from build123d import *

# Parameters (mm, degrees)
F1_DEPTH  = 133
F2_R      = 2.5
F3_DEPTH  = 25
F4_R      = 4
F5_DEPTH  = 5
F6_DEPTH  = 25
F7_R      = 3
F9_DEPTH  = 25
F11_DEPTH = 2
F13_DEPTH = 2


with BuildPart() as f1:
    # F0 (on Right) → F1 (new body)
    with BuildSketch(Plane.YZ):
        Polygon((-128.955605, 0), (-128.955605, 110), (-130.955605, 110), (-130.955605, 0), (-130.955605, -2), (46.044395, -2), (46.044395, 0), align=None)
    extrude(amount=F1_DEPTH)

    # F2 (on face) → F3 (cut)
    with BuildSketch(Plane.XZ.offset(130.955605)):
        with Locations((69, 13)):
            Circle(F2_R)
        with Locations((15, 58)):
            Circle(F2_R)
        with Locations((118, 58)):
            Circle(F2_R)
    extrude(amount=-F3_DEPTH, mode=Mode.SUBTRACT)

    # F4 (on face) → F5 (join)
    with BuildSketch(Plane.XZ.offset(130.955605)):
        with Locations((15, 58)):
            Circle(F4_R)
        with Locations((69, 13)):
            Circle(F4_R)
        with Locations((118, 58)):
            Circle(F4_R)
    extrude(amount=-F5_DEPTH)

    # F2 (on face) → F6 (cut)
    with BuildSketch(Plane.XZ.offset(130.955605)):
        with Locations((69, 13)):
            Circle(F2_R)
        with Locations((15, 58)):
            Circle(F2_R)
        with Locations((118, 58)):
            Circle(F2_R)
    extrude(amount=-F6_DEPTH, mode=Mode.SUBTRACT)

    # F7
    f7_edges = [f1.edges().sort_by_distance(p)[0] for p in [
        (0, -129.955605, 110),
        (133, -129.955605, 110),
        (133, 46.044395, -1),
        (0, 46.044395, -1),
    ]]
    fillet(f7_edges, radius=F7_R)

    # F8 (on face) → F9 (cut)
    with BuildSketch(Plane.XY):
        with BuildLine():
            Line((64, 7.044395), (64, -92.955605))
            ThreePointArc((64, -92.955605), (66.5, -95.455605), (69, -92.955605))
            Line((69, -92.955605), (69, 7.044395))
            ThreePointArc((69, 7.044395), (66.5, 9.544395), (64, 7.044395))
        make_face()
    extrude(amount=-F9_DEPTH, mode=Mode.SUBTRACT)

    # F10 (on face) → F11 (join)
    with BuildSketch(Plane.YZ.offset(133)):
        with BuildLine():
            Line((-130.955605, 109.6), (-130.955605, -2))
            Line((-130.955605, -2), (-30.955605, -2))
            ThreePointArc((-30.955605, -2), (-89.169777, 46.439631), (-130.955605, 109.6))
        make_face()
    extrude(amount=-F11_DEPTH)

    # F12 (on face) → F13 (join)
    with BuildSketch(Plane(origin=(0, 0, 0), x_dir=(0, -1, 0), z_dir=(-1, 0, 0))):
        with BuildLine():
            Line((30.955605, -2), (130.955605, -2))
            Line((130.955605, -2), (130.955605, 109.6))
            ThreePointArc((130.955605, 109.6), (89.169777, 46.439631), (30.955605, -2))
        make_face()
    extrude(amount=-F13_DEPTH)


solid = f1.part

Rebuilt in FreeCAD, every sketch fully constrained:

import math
import FreeCAD as App
import Part
import Sketcher
Q = App.Units.Quantity


def edges_at(feature, points):
    """Names of the edges that pass closest to the given points."""
    edges = feature.Shape.Edges
    near = lambda p: min(range(len(edges)), key=lambda i: edges[i].distToShape(Part.Vertex(*p))[0])
    return sorted({f"Edge{near(p) + 1}" for p in points})

doc = App.newDocument("Part")
body = doc.addObject("PartDesign::Body", "Body")

# Sketch on YZ plane
sketch1 = body.newObject("Sketcher::SketchObject", "Sketch")
sketch1.AttachmentSupport = (doc.getObject("YZ_Plane"), [""])
sketch1.MapMode = "FlatFace"
sketch1.addGeometry([
    Part.LineSegment(App.Vector(-129, 0, 0), App.Vector(-129, 110, 0)),  # 0
    Part.LineSegment(App.Vector(-129, 110, 0), App.Vector(-131, 110, 0)),  # 1
    Part.LineSegment(App.Vector(-131, 110, 0), App.Vector(-131, -2, 0)),  # 2
    Part.LineSegment(App.Vector(-131, -2, 0), App.Vector(46, -2, 0)),  # 3
    Part.LineSegment(App.Vector(46, -2, 0), App.Vector(46, 0, 0)),  # 4
    Part.LineSegment(App.Vector(46, 0, 0), App.Vector(-129, 0, 0)),  # 5
], False)
sketch1.addConstraint([
    Sketcher.Constraint("Coincident", 0, 2, 1, 1),
    Sketcher.Constraint("Coincident", 1, 2, 2, 1),
    Sketcher.Constraint("Coincident", 2, 2, 3, 1),
    Sketcher.Constraint("Coincident", 3, 2, 4, 1),
    Sketcher.Constraint("Coincident", 4, 2, 5, 1),
    Sketcher.Constraint("Coincident", 5, 2, 0, 1),
    Sketcher.Constraint("Vertical", 0),
    Sketcher.Constraint("Horizontal", 1),
    Sketcher.Constraint("Vertical", 2),
    Sketcher.Constraint("Horizontal", 3),
    Sketcher.Constraint("Vertical", 4),
    Sketcher.Constraint("Horizontal", 5),
    Sketcher.Constraint("PointOnObject", 4, 2, -1),
    Sketcher.Constraint("Equal", 1, 4),
    Sketcher.Constraint("DistanceX", 1, 2, 1, 1, Q("2 mm")),
    Sketcher.Constraint("DistanceX", 3, 1, 3, 2, Q("177 mm")),
    Sketcher.Constraint("DistanceY", 0, 1, 0, 2, Q("110 mm")),
    Sketcher.Constraint("DistanceX", 0, 2, -1, 1, Q("128.955605 mm")),
])
pad1 = body.newObject("PartDesign::Pad", "Pad")
pad1.Profile = sketch1
pad1.Length = 133

# Sketch on XZ plane
sketch2 = body.newObject("Sketcher::SketchObject", "Sketch001")
sketch2.AttachmentSupport = (doc.getObject("XZ_Plane"), [""])
sketch2.MapMode = "FlatFace"
sketch2.AttachmentOffset = App.Placement(App.Vector(0, 0, 130.955605), App.Rotation())
sketch2.addGeometry([
    Part.Circle(App.Vector(69, 13, 0), App.Vector(0, 0, 1), 2.5),
    Part.Circle(App.Vector(15, 58, 0), App.Vector(0, 0, 1), 2.5),
    Part.Circle(App.Vector(118, 58, 0), App.Vector(0, 0, 1), 2.5),
], False)
sketch2.addConstraint([
    Sketcher.Constraint("Equal", 0, 1),
    Sketcher.Constraint("Equal", 1, 2),
    Sketcher.Constraint("Horizontal", 1, 3, 2, 3),
    Sketcher.Constraint("Diameter", 0, Q("5 mm")),
    Sketcher.Constraint("DistanceX", -1, 1, 0, 3, Q("69 mm")),
    Sketcher.Constraint("DistanceY", -1, 1, 0, 3, Q("13 mm")),
    Sketcher.Constraint("DistanceX", -1, 1, 1, 3, Q("15 mm")),
    Sketcher.Constraint("DistanceY", -1, 1, 1, 3, Q("58 mm")),
    Sketcher.Constraint("DistanceX", -1, 1, 2, 3, Q("118 mm")),
])
pocket1 = body.newObject("PartDesign::Pocket", "Pocket")
pocket1.Profile = sketch2
pocket1.Length = 25

# Sketch on XZ plane
sketch3 = body.newObject("Sketcher::SketchObject", "Sketch002")
sketch3.AttachmentSupport = (doc.getObject("XZ_Plane"), [""])
sketch3.MapMode = "FlatFace"
sketch3.AttachmentOffset = App.Placement(App.Vector(0, 0, 130.955605), App.Rotation())
sketch3.addGeometry([
    Part.Circle(App.Vector(15, 58, 0), App.Vector(0, 0, 1), 4),
    Part.Circle(App.Vector(69, 13, 0), App.Vector(0, 0, 1), 4),
    Part.Circle(App.Vector(118, 58, 0), App.Vector(0, 0, 1), 4),
], False)
sketch3.addConstraint([
    Sketcher.Constraint("Equal", 0, 1),
    Sketcher.Constraint("Equal", 1, 2),
    Sketcher.Constraint("Horizontal", 0, 3, 2, 3),
    Sketcher.Constraint("Diameter", 0, Q("8 mm")),
    Sketcher.Constraint("DistanceX", -1, 1, 0, 3, Q("15 mm")),
    Sketcher.Constraint("DistanceY", -1, 1, 0, 3, Q("58 mm")),
    Sketcher.Constraint("DistanceX", -1, 1, 1, 3, Q("69 mm")),
    Sketcher.Constraint("DistanceY", -1, 1, 1, 3, Q("13 mm")),
    Sketcher.Constraint("DistanceX", -1, 1, 2, 3, Q("118 mm")),
])
pad2 = body.newObject("PartDesign::Pad", "Pad001")
pad2.Profile = sketch3
pad2.Length = 5
pad2.Reversed = True

# Sketch on XZ plane
sketch4 = body.newObject("Sketcher::SketchObject", "Sketch003")
sketch4.AttachmentSupport = (doc.getObject("XZ_Plane"), [""])
sketch4.MapMode = "FlatFace"
sketch4.AttachmentOffset = App.Placement(App.Vector(0, 0, 130.955605), App.Rotation())
sketch4.addGeometry([
    Part.Circle(App.Vector(69, 13, 0), App.Vector(0, 0, 1), 2.5),
    Part.Circle(App.Vector(15, 58, 0), App.Vector(0, 0, 1), 2.5),
    Part.Circle(App.Vector(118, 58, 0), App.Vector(0, 0, 1), 2.5),
], False)
sketch4.addConstraint([
    Sketcher.Constraint("Equal", 0, 1),
    Sketcher.Constraint("Equal", 1, 2),
    Sketcher.Constraint("Horizontal", 1, 3, 2, 3),
    Sketcher.Constraint("Diameter", 0, Q("5 mm")),
    Sketcher.Constraint("DistanceX", -1, 1, 0, 3, Q("69 mm")),
    Sketcher.Constraint("DistanceY", -1, 1, 0, 3, Q("13 mm")),
    Sketcher.Constraint("DistanceX", -1, 1, 1, 3, Q("15 mm")),
    Sketcher.Constraint("DistanceY", -1, 1, 1, 3, Q("58 mm")),
    Sketcher.Constraint("DistanceX", -1, 1, 2, 3, Q("118 mm")),
])
pocket2 = body.newObject("PartDesign::Pocket", "Pocket001")
pocket2.Profile = sketch4
pocket2.Length = 25
doc.recompute()

fillet = body.newObject("PartDesign::Fillet", "Fillet")
fillet.Base = (pocket2, edges_at(pocket2, [
    (0, -129.956, 110),
    (133, -129.956, 110),
    (133, 46.044, -1),
    (0, 46.044, -1),
]))
fillet.Radius = 3

# Sketch on XY plane
sketch5 = body.newObject("Sketcher::SketchObject", "Sketch004")
sketch5.AttachmentSupport = (doc.getObject("XY_Plane"), [""])
sketch5.MapMode = "FlatFace"
sketch5.addGeometry([
    Part.LineSegment(App.Vector(64, 7, 0), App.Vector(64, -93, 0)),
    Part.ArcOfCircle(Part.Circle(App.Vector(66.5, -93, 0), App.Vector(0, 0, 1), 2.5), math.radians(180), math.radians(360)),
    Part.LineSegment(App.Vector(69, -93, 0), App.Vector(69, 7, 0)),
    Part.ArcOfCircle(Part.Circle(App.Vector(66.5, 7, 0), App.Vector(0, 0, 1), 2.5), math.radians(0), math.radians(180)),
], False)
sketch5.addConstraint([
    Sketcher.Constraint("Tangent", 0, 2, 1, 1),
    Sketcher.Constraint("Tangent", 1, 2, 2, 1),
    Sketcher.Constraint("Tangent", 2, 2, 3, 1),
    Sketcher.Constraint("Tangent", 3, 2, 0, 1),
    Sketcher.Constraint("Vertical", 0),
    Sketcher.Constraint("Vertical", 2),
    Sketcher.Constraint("Radius", 1, Q("2.5 mm")),
    Sketcher.Constraint("DistanceY", 0, 2, 0, 1, Q("100 mm")),
    Sketcher.Constraint("DistanceX", -1, 1, 0, 2, Q("64 mm")),
    Sketcher.Constraint("DistanceY", 1, 3, -1, 1, Q("92.955605 mm")),
])
pocket3 = body.newObject("PartDesign::Pocket", "Pocket002")
pocket3.Profile = sketch5
pocket3.Length = 25

# Sketch on YZ plane
sketch6 = body.newObject("Sketcher::SketchObject", "Sketch005")
sketch6.AttachmentSupport = (doc.getObject("YZ_Plane"), [""])
sketch6.MapMode = "FlatFace"
sketch6.AttachmentOffset = App.Placement(App.Vector(0, 0, 133), App.Rotation())
sketch6.addGeometry([
    Part.LineSegment(App.Vector(-131, 110, 0), App.Vector(-131, -2, 0)),
    Part.LineSegment(App.Vector(-131, -2, 0), App.Vector(-31, -2, 0)),
    Part.ArcOfCircle(Part.Circle(App.Vector(104, 220, 0), App.Vector(0, 0, 1), 260), math.radians(-155), math.radians(-121)),
], False)
sketch6.addConstraint([
    Sketcher.Constraint("Coincident", 0, 2, 1, 1),
    Sketcher.Constraint("Coincident", 1, 2, 2, 2),
    Sketcher.Constraint("Coincident", 2, 1, 0, 1),
    Sketcher.Constraint("Vertical", 0),
    Sketcher.Constraint("Horizontal", 1),
    Sketcher.Constraint("DistanceX", 1, 1, 1, 2, Q("100 mm")),
    Sketcher.Constraint("DistanceY", 0, 2, 0, 1, Q("111.6 mm")),
    Sketcher.Constraint("DistanceY", 0, 2, -1, 1, Q("2 mm")),
    Sketcher.Constraint("Radius", 2, Q("259.999996 mm")),
    Sketcher.Constraint("DistanceX", -1, 1, 2, 3, Q("104.465848 mm")),
])
pad3 = body.newObject("PartDesign::Pad", "Pad002")
pad3.Profile = sketch6
pad3.Length = 2
pad3.Reversed = True

# Sketch on YZ plane
sketch7 = body.newObject("Sketcher::SketchObject", "Sketch006")
sketch7.AttachmentSupport = (doc.getObject("YZ_Plane"), [""])
sketch7.MapMode = "FlatFace"
sketch7.addGeometry([
    Part.LineSegment(App.Vector(-31, -2, 0), App.Vector(-131, -2, 0)),
    Part.LineSegment(App.Vector(-131, -2, 0), App.Vector(-131, 110, 0)),
    Part.ArcOfCircle(Part.Circle(App.Vector(104, 220, 0), App.Vector(0, 0, 1), 260), math.radians(-155), math.radians(-121)),
], False)
sketch7.addConstraint([
    Sketcher.Constraint("Coincident", 0, 2, 1, 1),
    Sketcher.Constraint("Coincident", 1, 2, 2, 1),
    Sketcher.Constraint("Coincident", 2, 2, 0, 1),
    Sketcher.Constraint("Horizontal", 0),
    Sketcher.Constraint("Vertical", 1),
    Sketcher.Constraint("DistanceX", 0, 2, 0, 1, Q("100 mm")),
    Sketcher.Constraint("DistanceY", 1, 1, 1, 2, Q("111.6 mm")),
    Sketcher.Constraint("DistanceY", 0, 2, -1, 1, Q("2 mm")),
    Sketcher.Constraint("Radius", 2, Q("259.999996 mm")),
    Sketcher.Constraint("DistanceX", -1, 1, 2, 3, Q("104.465848 mm")),
])
pad4 = body.newObject("PartDesign::Pad", "Pad003")
pad4.Profile = sketch7
pad4.Length = 2

doc.recompute()
